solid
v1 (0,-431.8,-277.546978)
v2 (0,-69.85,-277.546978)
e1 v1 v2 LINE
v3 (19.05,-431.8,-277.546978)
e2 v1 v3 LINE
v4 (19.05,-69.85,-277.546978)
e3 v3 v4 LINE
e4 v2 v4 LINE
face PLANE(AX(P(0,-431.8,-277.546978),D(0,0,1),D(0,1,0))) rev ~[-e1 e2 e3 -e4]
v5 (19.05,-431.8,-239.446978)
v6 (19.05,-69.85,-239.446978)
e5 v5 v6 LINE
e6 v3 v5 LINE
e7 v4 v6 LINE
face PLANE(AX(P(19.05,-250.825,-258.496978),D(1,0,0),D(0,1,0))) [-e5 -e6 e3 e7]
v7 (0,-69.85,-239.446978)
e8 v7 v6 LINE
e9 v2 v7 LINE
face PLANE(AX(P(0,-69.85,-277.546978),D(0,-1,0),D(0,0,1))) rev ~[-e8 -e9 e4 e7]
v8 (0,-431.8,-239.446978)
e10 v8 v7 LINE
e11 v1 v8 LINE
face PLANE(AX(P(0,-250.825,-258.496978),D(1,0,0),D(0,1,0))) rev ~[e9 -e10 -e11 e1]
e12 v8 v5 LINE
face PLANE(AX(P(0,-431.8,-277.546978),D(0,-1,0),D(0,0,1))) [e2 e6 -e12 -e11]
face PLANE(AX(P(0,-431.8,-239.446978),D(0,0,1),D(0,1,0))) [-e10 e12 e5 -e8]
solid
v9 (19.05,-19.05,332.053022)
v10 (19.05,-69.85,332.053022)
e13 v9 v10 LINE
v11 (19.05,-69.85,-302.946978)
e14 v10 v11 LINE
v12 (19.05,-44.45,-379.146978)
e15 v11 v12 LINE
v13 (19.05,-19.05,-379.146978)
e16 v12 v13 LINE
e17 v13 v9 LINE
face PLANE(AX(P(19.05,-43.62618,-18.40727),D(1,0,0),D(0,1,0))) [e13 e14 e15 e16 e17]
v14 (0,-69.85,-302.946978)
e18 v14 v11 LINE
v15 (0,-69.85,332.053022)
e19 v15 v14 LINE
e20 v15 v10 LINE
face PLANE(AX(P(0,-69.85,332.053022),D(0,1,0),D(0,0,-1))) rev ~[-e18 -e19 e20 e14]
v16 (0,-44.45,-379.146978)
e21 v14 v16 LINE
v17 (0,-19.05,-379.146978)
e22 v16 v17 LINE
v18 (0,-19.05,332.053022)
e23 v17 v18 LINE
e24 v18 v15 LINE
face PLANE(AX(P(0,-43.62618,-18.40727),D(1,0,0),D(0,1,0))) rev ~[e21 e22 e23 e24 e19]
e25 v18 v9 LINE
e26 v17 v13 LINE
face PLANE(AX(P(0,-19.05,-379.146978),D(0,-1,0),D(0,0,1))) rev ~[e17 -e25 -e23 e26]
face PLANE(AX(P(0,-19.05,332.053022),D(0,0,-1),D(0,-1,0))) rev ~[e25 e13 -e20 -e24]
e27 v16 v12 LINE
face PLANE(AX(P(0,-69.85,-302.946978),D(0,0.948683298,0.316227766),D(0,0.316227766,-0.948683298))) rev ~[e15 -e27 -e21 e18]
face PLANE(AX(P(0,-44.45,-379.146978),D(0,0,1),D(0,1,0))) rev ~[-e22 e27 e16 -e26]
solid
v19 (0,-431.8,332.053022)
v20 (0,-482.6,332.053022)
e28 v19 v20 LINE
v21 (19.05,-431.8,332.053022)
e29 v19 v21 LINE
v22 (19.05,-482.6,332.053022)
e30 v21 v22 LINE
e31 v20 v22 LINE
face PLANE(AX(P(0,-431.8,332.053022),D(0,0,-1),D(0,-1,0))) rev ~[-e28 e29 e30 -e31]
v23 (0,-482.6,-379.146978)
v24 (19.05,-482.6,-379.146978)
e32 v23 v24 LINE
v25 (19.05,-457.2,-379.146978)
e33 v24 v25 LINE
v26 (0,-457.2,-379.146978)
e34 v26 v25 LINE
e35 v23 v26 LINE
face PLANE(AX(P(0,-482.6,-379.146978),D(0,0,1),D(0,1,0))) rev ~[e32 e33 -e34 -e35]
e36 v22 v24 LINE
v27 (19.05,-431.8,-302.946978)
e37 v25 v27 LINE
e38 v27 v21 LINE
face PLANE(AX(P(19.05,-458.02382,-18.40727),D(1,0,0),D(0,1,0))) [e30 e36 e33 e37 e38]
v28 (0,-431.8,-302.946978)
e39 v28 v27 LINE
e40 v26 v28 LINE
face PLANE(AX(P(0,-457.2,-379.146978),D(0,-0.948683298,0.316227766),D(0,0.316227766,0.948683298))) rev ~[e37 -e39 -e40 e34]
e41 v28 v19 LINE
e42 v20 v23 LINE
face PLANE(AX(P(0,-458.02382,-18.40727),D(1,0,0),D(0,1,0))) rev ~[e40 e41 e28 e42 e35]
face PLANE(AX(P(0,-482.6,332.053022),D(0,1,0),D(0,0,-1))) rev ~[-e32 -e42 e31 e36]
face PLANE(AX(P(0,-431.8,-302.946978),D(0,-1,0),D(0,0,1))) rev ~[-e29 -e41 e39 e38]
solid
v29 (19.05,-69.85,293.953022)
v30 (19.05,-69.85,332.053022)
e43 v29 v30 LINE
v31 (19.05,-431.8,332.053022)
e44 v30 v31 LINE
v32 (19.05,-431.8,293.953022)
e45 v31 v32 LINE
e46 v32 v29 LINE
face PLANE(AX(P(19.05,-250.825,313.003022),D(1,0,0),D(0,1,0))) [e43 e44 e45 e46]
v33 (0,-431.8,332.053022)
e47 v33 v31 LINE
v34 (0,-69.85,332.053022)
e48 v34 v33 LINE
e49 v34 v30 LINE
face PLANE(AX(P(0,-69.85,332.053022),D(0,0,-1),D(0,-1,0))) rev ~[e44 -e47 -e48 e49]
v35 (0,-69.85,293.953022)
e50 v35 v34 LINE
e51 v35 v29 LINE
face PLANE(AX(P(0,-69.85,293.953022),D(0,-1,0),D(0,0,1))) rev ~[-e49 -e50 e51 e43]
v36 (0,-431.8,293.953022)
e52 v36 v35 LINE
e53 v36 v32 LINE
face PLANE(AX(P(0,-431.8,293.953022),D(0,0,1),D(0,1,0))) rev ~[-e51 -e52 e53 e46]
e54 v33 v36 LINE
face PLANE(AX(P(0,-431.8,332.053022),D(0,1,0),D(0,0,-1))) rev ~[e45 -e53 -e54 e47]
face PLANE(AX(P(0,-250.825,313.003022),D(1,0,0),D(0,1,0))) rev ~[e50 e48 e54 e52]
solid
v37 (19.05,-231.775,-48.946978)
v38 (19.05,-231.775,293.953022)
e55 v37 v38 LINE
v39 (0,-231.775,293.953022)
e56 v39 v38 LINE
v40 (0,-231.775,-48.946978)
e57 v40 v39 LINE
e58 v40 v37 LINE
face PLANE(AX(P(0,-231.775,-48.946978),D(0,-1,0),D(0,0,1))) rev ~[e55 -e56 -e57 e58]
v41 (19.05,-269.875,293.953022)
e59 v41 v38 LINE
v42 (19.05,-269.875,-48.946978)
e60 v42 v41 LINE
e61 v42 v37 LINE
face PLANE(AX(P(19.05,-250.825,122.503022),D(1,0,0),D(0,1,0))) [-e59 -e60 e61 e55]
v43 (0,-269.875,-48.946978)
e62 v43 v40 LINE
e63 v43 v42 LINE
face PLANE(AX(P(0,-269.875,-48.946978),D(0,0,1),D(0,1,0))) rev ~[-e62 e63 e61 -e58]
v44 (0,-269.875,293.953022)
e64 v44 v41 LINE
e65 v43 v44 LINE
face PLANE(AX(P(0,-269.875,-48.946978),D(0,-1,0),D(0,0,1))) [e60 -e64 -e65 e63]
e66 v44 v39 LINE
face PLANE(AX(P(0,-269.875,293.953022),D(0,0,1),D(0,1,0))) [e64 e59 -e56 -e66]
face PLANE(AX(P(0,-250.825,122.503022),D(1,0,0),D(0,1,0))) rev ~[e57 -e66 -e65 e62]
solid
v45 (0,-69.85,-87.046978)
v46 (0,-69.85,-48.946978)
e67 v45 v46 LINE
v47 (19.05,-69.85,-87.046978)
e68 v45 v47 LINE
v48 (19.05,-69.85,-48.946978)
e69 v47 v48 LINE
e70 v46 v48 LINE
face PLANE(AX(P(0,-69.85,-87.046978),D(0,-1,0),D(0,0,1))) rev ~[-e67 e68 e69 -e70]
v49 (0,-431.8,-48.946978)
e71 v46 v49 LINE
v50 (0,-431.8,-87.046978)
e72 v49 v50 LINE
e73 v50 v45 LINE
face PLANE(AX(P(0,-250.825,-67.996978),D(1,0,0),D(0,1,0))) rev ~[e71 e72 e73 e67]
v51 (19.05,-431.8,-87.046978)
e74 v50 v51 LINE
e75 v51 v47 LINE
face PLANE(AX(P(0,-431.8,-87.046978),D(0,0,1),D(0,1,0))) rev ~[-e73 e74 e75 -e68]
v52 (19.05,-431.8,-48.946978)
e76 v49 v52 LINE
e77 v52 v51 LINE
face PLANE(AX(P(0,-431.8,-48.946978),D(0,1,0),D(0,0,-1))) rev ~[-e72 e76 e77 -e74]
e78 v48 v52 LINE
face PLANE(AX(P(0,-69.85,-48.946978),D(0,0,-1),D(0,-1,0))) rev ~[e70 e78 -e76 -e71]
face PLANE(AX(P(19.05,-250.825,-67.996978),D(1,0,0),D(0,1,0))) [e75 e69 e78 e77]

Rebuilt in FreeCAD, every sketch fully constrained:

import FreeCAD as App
import Part
import Sketcher
from FreeCAD import Vector
Q = App.Units.Quantity


def add_polygon(sketch, points):
    """Adds a closed chain of lines whose ends are joined by coincident constraints."""
    first, n = sketch.GeometryCount, len(points)
    for a, b in zip(points, points[1:] + points[:1]):
        sketch.addGeometry(Part.LineSegment(App.Vector(*a, 0), App.Vector(*b, 0)), False)
    for i in range(n):
        sketch.addConstraint(Sketcher.Constraint("Coincident", first + i, 2, first + (i + 1) % n, 1))

doc = App.newDocument("Part")
body = doc.addObject("PartDesign::Body", "Body")
body.AllowCompound = True

# Sketch on YZ plane
sketch1 = body.newObject("Sketcher::SketchObject", "Sketch")
sketch1.AttachmentSupport = (doc.getObject("YZ_Plane"), [""])
sketch1.MapMode = "FlatFace"
add_polygon(sketch1, [(-432, 332), (-483, 332), (-483, -379), (-457, -379), (-432, -303)])  # lines 0-4
add_polygon(sketch1, [(-270, 294), (-270, -49), (-232, -49), (-232, 294)])  # lines 5-8
add_polygon(sketch1, [(-19, 332), (-70, 332), (-70, -303), (-44, -379), (-19, -379)])  # lines 9-13
sketch1.addConstraint(Sketcher.Constraint("Horizontal", 0))
sketch1.addConstraint(Sketcher.Constraint("Vertical", 1))
sketch1.addConstraint(Sketcher.Constraint("Horizontal", 2))
sketch1.addConstraint(Sketcher.Constraint("Vertical", 4))
sketch1.addConstraint(Sketcher.Constraint("Vertical", 5))
sketch1.addConstraint(Sketcher.Constraint("Horizontal", 6))
sketch1.addConstraint(Sketcher.Constraint("Vertical", 7))
sketch1.addConstraint(Sketcher.Constraint("Horizontal", 8))
sketch1.addConstraint(Sketcher.Constraint("Horizontal", 9))
sketch1.addConstraint(Sketcher.Constraint("Vertical", 10))
sketch1.addConstraint(Sketcher.Constraint("Horizontal", 12))
sketch1.addConstraint(Sketcher.Constraint("Vertical", 13))
sketch1.addConstraint(Sketcher.Constraint("Horizontal", 4, 2, 9, 2))
sketch1.addConstraint(Sketcher.Constraint("Horizontal", 3, 2, 10, 2))
sketch1.addConstraint(Sketcher.Constraint("Horizontal", 2, 2, 11, 2))
sketch1.addConstraint(Sketcher.Constraint("Equal", 0, 9))
sketch1.addConstraint(Sketcher.Constraint("Equal", 2, 12))
sketch1.addConstraint(Sketcher.Constraint("DistanceX", 0, 2, 0, 1, Q("2 in")))
sketch1.addConstraint(Sketcher.Constraint("DistanceX", 2, 1, 2, 2, Q("1 in")))
sketch1.addConstraint(Sketcher.Constraint("DistanceY", 1, 2, 1, 1, Q("28 in")))
sketch1.addConstraint(Sketcher.Constraint("DistanceY", 4, 1, 4, 2, Q("25 in")))
sketch1.addConstraint(Sketcher.Constraint("DistanceX", 6, 1, 6, 2, Q("1.5 in")))
sketch1.addConstraint(Sketcher.Constraint("DistanceY", 5, 2, 5, 1, Q("13.5 in")))
sketch1.addConstraint(Sketcher.Constraint("DistanceX", 0, 2, -1, 1, Q("19 in")))
sketch1.addConstraint(Sketcher.Constraint("DistanceY", 3, 2, 5, 2, Q("10 in")))
sketch1.addConstraint(Sketcher.Constraint("DistanceX", 9, 2, -1, 1, Q("2.75 in")))
sketch1.addConstraint(Sketcher.Constraint("DistanceX", 5, 2, -1, 1, Q("10.625 in")))
sketch1.addConstraint(Sketcher.Constraint("DistanceY", -1, 1, 0, 2, 332.053022))
pad1 = body.newObject("PartDesign::Pad", "Pad")
pad1.Profile = sketch1
pad1.Length = Q("0.75 in")
body2 = doc.addObject("PartDesign::Body", "Body001")
body2.AllowCompound = True

# Sketch on YZ plane
sketch2 = body2.newObject("Sketcher::SketchObject", "Sketch001")
sketch2.AttachmentSupport = (doc.getObject("YZ_Plane001"), [""])
sketch2.MapMode = "FlatFace"
add_polygon(sketch2, [(-70, 332), (-432, 332), (-432, 294), (-70, 294)])  # lines 0-3
add_polygon(sketch2, [(-432, -49), (-432, -87), (-70, -87), (-70, -49)])  # lines 4-7
add_polygon(sketch2, [(-432, -239), (-432, -278), (-70, -278), (-70, -239)])  # lines 8-11
sketch2.addConstraint(Sketcher.Constraint("Horizontal", 0))
sketch2.addConstraint(Sketcher.Constraint("Vertical", 1))
sketch2.addConstraint(Sketcher.Constraint("Horizontal", 2))
sketch2.addConstraint(Sketcher.Constraint("Vertical", 3))
sketch2.addConstraint(Sketcher.Constraint("Vertical", 4))
sketch2.addConstraint(Sketcher.Constraint("Horizontal", 5))
sketch2.addConstraint(Sketcher.Constraint("Vertical", 6))
sketch2.addConstraint(Sketcher.Constraint("Horizontal", 7))
sketch2.addConstraint(Sketcher.Constraint("Vertical", 8))
sketch2.addConstraint(Sketcher.Constraint("Horizontal", 9))
sketch2.addConstraint(Sketcher.Constraint("Vertical", 10))
sketch2.addConstraint(Sketcher.Constraint("Horizontal", 11))
sketch2.addConstraint(Sketcher.Constraint("Vertical", 1, 2, 4, 2))
sketch2.addConstraint(Sketcher.Constraint("Vertical", 3, 2, 5, 2))
sketch2.addConstraint(Sketcher.Constraint("Vertical", 7, 2, 8, 2))
sketch2.addConstraint(Sketcher.Constraint("Vertical", 6, 2, 9, 2))
sketch2.addConstraint(Sketcher.Constraint("Equal", 3, 4))
sketch2.addConstraint(Sketcher.Constraint("Equal", 6, 8))
sketch2.addConstraint(Sketcher.Constraint("DistanceY", 1, 2, 1, 1, Q("1.5 in")))
sketch2.addConstraint(Sketcher.Constraint("DistanceX", 0, 2, -1, 1, Q("17 in")))
sketch2.addConstraint(Sketcher.Constraint("DistanceY", 4, 2, 1, 2, Q("15 in")))
sketch2.addConstraint(Sketcher.Constraint("DistanceY", 8, 2, 7, 2, Q("9 in")))
sketch2.addConstraint(Sketcher.Constraint("DistanceX", 0, 2, 0, 1, Q("14.25 in")))
sketch2.addConstraint(Sketcher.Constraint("DistanceY", -1, 1, 0, 2, 332.053022))
pad2 = body2.newObject("PartDesign::Pad", "Pad001")
pad2.Profile = sketch2
pad2.Length = Q("0.75 in")

doc.recompute()
